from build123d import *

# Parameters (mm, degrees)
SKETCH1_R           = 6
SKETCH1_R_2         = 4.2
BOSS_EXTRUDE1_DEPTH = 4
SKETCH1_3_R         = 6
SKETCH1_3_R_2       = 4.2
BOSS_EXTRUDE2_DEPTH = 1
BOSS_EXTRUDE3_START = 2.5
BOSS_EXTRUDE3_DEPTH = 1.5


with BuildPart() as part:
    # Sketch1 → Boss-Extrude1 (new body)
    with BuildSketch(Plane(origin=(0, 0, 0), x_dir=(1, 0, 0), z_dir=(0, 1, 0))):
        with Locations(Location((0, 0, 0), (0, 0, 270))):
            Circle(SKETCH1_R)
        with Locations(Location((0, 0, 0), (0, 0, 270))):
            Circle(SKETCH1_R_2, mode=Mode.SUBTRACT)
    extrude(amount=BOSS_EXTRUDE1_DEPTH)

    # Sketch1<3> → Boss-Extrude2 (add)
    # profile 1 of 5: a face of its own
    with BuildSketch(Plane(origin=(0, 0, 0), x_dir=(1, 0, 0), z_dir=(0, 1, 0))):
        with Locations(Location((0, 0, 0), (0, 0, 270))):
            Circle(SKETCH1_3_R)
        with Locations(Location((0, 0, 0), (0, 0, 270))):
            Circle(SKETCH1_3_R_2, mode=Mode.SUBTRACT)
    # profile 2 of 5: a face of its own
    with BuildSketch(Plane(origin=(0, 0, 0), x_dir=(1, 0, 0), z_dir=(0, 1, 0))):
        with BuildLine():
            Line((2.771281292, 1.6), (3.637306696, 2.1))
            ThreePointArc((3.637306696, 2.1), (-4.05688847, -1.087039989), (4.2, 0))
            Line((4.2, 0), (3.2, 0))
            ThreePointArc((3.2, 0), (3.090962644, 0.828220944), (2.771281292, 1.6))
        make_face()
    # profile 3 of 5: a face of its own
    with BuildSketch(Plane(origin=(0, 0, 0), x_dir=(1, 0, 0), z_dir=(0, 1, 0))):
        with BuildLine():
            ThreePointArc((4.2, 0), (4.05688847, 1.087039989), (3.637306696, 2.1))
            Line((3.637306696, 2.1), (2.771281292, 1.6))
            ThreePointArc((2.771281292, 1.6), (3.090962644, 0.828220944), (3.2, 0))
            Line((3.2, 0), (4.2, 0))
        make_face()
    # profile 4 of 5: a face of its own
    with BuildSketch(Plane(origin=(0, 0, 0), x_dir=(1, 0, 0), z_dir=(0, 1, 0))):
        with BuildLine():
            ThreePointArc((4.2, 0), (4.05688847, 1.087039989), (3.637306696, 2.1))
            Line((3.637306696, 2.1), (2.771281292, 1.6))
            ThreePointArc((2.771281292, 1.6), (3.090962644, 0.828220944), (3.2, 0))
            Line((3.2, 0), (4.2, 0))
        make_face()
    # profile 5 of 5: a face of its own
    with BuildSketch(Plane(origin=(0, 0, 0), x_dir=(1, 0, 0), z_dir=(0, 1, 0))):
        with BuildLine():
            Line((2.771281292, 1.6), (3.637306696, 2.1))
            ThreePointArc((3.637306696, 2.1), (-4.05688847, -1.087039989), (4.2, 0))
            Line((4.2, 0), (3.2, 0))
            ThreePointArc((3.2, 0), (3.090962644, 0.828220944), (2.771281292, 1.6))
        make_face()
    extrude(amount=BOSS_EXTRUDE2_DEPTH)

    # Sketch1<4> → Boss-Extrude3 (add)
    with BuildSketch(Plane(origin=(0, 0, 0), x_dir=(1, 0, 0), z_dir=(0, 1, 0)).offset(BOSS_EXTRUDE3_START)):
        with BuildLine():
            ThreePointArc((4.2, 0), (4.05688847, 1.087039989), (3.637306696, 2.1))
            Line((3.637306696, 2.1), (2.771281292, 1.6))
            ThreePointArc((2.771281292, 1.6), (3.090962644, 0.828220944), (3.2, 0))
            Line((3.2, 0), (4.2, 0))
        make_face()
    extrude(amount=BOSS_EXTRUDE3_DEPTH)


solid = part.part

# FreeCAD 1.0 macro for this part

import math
import FreeCAD as App
import Part
import Sketcher
Q = App.Units.Quantity

doc = App.newDocument("Part")
body = doc.addObject("PartDesign::Body", "Body")

sketch1 = body.newObject("Sketcher::SketchObject", "Sketch")
sketch1.AttachmentSupport = (doc.getObject("XZ_Plane"), [""])
sketch1.MapMode = "FlatFace"
sketch1.addGeometry([
    Part.Circle(App.Vector(0, 0, 0), App.Vector(0, 0, 1), 6),
    Part.Circle(App.Vector(0, 0, 0), App.Vector(0, 0, 1), 4.2),
], False)
sketch1.addConstraint([
    Sketcher.Constraint("Coincident", 0, 3, -1, 1),
    Sketcher.Constraint("Coincident", 1, 3, -1, 1),
    Sketcher.Constraint("Diameter", 0, 12.0),
    Sketcher.Constraint("Diameter", 1, 8.4),
])
pad1 = body.newObject("PartDesign::Pad", "Pad")
pad1.Profile = sketch1
pad1.Length = 4
pad1.Reversed = True

sketch2 = body.newObject("Sketcher::SketchObject", "Sketch001")
sketch2.AttachmentSupport = (doc.getObject("XZ_Plane"), [""])
sketch2.MapMode = "FlatFace"
sketch2.addGeometry(Part.Circle(App.Vector(0, 0, 0), App.Vector(0, 0, 1), 6), False)
sketch2.addConstraint([
    Sketcher.Constraint("Coincident", 0, 3, -1, 1),
    Sketcher.Constraint("Diameter", 0, 12.0),
])
pad2 = body.newObject("PartDesign::Pad", "Pad001")
pad2.Profile = sketch2
pad2.Length = 1
pad2.Reversed = True

sketch3 = body.newObject("Sketcher::SketchObject", "Sketch002")
sketch3.AttachmentSupport = (doc.getObject("XZ_Plane"), [""])
sketch3.MapMode = "FlatFace"
sketch3.AttachmentOffset = App.Placement(App.Vector(0, 0, -2.5), App.Rotation())
sketch3.addGeometry([
    Part.ArcOfCircle(Part.Circle(App.Vector(0, 0, 0), App.Vector(0, 0, 1), 4.2), math.radians(-30), math.radians(0)),
    Part.LineSegment(App.Vector(3.6, -2.1, 0), App.Vector(2.8, -1.6, 0)),
    Part.ArcOfCircle(Part.Circle(App.Vector(0, 0, 0), App.Vector(0, 0, 1), 3.2), math.radians(-30), math.radians(0)),
    Part.LineSegment(App.Vector(3.2, 0, 0), App.Vector(4.2, 0, 0)),
], False)
sketch3.addConstraint([
    Sketcher.Constraint("Coincident", 0, 1, 1, 1),
    Sketcher.Constraint("Coincident", 1, 2, 2, 1),
    Sketcher.Constraint("Coincident", 2, 2, 3, 1),
    Sketcher.Constraint("Coincident", 3, 2, 0, 2),
    Sketcher.Constraint("Horizontal", 3),
    Sketcher.Constraint("Coincident", 0, 3, -1, 1),
    Sketcher.Constraint("Coincident", 2, 3, -1, 1),
    Sketcher.Constraint("PointOnObject", 2, 2, -1),
    Sketcher.Constraint("Radius", 0, 4.2),
    Sketcher.Constraint("Radius", 2, 3.2),
    Sketcher.Constraint("Angle", 1, Q("150 deg")),
    Sketcher.Constraint("DistanceY", 0, 1, -1, 1, 2.1),
])
pad3 = body.newObject("PartDesign::Pad", "Pad002")
pad3.Profile = sketch3
pad3.Length = 1.5
pad3.Reversed = True

doc.recompute()
